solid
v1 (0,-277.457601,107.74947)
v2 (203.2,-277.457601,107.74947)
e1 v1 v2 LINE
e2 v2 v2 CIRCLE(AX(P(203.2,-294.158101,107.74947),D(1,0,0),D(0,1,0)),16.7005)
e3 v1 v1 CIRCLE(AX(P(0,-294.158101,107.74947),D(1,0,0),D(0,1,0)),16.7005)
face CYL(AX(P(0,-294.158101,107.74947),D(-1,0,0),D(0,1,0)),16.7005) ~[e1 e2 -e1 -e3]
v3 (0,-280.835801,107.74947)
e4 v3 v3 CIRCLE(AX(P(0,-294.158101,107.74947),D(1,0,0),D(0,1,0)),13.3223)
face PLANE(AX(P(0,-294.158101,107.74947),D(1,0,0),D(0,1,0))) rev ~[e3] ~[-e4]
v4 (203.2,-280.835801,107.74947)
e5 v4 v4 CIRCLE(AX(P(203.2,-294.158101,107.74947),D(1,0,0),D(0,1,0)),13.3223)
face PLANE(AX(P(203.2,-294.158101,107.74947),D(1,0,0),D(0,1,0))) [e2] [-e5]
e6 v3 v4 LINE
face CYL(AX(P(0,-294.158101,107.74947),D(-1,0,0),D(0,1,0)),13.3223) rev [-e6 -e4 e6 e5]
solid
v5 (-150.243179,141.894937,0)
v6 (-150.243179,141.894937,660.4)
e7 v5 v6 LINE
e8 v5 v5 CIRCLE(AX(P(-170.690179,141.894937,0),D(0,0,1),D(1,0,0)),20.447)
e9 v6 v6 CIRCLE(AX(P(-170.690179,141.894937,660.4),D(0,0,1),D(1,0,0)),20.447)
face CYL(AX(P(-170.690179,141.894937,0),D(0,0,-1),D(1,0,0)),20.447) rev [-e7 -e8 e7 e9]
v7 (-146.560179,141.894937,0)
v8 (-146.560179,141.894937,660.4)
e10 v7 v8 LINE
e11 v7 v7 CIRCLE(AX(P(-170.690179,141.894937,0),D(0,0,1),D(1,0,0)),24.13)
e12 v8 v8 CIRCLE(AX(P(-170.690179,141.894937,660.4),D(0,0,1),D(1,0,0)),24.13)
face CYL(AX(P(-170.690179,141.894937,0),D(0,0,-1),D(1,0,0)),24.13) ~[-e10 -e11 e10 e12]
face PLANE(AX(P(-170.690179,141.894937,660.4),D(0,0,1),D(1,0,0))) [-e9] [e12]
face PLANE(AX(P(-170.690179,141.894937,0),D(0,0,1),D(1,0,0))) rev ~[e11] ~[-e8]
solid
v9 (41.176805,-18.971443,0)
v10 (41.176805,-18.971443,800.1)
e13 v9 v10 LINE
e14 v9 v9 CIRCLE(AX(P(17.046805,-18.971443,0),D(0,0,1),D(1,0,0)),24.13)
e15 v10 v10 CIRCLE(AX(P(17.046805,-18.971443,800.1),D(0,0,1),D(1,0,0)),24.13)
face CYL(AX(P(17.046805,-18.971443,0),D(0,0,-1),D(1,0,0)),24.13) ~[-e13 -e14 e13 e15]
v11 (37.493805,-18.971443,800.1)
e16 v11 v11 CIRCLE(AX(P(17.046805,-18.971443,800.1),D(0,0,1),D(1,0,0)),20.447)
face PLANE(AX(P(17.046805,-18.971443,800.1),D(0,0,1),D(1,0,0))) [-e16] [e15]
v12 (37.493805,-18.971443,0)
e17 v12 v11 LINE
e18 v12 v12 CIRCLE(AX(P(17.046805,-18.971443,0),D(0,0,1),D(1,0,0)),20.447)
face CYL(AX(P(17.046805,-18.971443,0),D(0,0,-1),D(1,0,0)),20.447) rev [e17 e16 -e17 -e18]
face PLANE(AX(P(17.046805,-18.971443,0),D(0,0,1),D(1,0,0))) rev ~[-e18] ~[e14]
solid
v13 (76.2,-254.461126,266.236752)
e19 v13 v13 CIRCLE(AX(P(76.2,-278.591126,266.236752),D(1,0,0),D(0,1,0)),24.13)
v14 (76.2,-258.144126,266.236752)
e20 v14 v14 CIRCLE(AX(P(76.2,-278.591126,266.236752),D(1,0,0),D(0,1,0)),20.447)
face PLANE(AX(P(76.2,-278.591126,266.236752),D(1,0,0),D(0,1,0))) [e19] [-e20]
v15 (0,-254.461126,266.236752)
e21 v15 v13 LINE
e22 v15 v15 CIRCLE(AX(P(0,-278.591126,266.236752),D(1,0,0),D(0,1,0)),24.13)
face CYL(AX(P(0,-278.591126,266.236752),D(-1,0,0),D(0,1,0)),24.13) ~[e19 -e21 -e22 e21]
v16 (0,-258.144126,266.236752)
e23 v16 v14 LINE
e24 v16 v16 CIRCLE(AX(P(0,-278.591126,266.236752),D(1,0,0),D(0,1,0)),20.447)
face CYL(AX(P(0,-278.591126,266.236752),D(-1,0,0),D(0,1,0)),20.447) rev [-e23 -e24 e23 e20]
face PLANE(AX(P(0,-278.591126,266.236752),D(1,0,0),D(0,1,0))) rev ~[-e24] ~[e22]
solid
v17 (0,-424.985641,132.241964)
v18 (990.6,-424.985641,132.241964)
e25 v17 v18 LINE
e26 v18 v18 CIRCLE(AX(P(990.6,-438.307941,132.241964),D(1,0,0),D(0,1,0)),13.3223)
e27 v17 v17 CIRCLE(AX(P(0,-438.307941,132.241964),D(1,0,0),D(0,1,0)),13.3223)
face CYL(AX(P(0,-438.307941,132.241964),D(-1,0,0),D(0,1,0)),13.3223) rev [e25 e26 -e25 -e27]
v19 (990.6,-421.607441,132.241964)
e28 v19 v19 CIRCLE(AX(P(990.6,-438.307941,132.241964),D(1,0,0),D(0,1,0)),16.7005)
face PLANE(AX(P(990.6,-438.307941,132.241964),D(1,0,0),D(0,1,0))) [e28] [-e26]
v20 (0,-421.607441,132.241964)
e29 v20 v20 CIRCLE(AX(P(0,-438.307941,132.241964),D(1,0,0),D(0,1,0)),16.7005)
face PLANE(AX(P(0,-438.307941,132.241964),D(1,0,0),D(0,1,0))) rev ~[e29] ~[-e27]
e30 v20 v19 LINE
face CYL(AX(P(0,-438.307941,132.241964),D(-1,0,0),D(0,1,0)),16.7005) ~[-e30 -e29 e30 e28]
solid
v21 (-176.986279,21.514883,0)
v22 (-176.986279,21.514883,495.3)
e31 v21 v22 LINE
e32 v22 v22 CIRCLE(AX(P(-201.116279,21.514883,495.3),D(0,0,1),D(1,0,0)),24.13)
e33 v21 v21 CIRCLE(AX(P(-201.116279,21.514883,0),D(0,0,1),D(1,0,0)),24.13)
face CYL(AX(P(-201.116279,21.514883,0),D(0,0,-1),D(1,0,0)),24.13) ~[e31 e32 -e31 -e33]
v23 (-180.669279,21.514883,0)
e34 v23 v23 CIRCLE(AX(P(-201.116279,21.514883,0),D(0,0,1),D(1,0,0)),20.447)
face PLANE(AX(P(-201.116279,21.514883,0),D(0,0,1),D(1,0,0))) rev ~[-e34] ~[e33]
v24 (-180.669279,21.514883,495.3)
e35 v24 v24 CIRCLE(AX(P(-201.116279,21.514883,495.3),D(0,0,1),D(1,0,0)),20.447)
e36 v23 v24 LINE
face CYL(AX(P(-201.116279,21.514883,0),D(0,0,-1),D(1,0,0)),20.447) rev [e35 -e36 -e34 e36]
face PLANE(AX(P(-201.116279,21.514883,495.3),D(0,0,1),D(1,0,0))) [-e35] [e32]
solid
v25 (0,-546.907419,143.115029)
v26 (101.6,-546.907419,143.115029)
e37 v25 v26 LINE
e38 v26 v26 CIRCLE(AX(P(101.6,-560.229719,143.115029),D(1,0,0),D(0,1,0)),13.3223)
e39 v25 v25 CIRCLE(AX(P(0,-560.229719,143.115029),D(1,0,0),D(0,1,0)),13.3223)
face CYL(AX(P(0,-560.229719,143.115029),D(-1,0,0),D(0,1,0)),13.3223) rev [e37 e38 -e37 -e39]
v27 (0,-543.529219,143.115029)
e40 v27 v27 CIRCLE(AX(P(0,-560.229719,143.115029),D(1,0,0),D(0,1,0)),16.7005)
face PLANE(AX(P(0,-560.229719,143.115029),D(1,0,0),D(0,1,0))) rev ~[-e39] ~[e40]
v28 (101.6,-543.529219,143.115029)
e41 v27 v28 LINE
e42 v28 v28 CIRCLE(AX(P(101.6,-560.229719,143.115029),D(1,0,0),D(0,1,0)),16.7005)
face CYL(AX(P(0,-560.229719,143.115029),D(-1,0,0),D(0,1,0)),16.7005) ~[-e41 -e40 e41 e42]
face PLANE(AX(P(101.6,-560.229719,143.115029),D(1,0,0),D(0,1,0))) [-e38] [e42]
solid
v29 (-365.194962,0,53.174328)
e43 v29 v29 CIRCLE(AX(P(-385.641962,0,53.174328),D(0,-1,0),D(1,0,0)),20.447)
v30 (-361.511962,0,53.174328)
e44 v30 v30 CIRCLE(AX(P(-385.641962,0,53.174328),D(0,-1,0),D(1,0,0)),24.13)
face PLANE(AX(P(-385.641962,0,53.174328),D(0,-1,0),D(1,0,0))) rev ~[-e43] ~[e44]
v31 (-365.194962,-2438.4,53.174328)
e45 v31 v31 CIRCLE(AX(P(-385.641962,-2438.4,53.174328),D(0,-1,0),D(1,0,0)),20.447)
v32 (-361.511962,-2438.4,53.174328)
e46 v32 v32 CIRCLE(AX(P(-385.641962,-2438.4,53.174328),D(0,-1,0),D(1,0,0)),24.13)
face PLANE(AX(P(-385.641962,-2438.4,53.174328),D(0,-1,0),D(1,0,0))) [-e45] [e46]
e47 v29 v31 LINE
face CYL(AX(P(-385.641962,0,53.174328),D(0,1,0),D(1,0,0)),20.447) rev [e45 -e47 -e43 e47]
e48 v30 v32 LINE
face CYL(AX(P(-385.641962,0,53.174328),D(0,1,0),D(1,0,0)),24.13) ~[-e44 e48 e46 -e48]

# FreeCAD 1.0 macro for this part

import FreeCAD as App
import Part
import Sketcher

V = App.Vector
Q = App.Units.Quantity

doc = App.newDocument("Part")
params = doc.addObject("Spreadsheet::Sheet", "Params")
for row, (alias, value) in enumerate([
    ("sketch1_diameter", "1.9 in"),
    ("sketch1_diameter2", "1.61 in"),
    ("pad1_length", "31.5 in"),
    ("sketch2_diameter", "1.9 in"),
    ("sketch2_diameter2", "1.61 in"),
    ("pad2_length", "26 in"),
    ("sketch3_diameter", "1.9 in"),
    ("sketch3_diameter2", "1.61 in"),
    ("pad3_length", "19.5 in"),
    ("sketch4_diameter", "1.9 in"),
    ("sketch4_diameter2", "1.61 in"),
    ("pad4_length", "3 in"),
    ("sketch5_diameter", "1.315 in"),
    ("sketch5_diameter2", "1.049 in"),
    ("pad5_length", "8 in"),
    ("sketch6_diameter", "1.315 in"),
    ("sketch6_diameter2", "1.049 in"),
    ("pad6_length", "39 in"),
    ("sketch7_diameter", "1.315 in"),
    ("sketch7_diameter2", "1.049 in"),
    ("pad7_length", "4 in"),
    ("sketch8_diameter", "1.9 in"),
    ("sketch8_diameter2", "1.61 in"),
    ("pad8_length", "96 in"),
], start=1):
    params.set(f"A{row}", alias)
    params.set(f"B{row}", "=" + value)
    params.setAlias(f"B{row}", alias)

body = doc.addObject("PartDesign::Body", "Body")

sketch1 = body.newObject("Sketcher::SketchObject", "Sketch")
sketch1.AttachmentSupport = (doc.getObject("XY_Plane"), [""])
sketch1.MapMode = "FlatFace"
sketch1.addGeometry([
    Part.Circle(V(17, -19, 0), V(0, 0, 1), 24),
    Part.Circle(V(17, -19, 0), V(0, 0, 1), 20),
], False)
sketch1.addConstraint([
    Sketcher.Constraint("Coincident", 1, 3, 0, 3),
    Sketcher.Constraint("Diameter", 0, Q("1.9 in")),
    Sketcher.Constraint("Diameter", 1, Q("1.61 in")),
    Sketcher.Constraint("DistanceX", -1, 1, 0, 3, Q("17.046805 mm")),
    Sketcher.Constraint("DistanceY", 0, 3, -1, 1, Q("18.971443 mm")),
])
sketch1.setExpression("Constraints[1]", "Params.sketch1_diameter")
sketch1.setExpression("Constraints[2]", "Params.sketch1_diameter2")
pad1 = body.newObject("PartDesign::Pad", "Pad")
pad1.Profile = sketch1
pad1.setExpression("Length", "Params.pad1_length")
body2 = doc.addObject("PartDesign::Body", "Body001")

sketch2 = body2.newObject("Sketcher::SketchObject", "Sketch001")
sketch2.AttachmentSupport = (doc.getObject("XY_Plane001"), [""])
sketch2.MapMode = "FlatFace"
sketch2.addGeometry([
    Part.Circle(V(-171, 142, 0), V(0, 0, 1), 24),
    Part.Circle(V(-171, 142, 0), V(0, 0, 1), 20),
], False)
sketch2.addConstraint([
    Sketcher.Constraint("Coincident", 1, 3, 0, 3),
    Sketcher.Constraint("Diameter", 0, Q("1.9 in")),
    Sketcher.Constraint("Diameter", 1, Q("1.61 in")),
    Sketcher.Constraint("DistanceX", 0, 3, -1, 1, Q("170.690179 mm")),
    Sketcher.Constraint("DistanceY", -1, 1, 0, 3, Q("141.894937 mm")),
])
sketch2.setExpression("Constraints[1]", "Params.sketch2_diameter")
sketch2.setExpression("Constraints[2]", "Params.sketch2_diameter2")
pad2 = body2.newObject("PartDesign::Pad", "Pad001")
pad2.Profile = sketch2
pad2.setExpression("Length", "Params.pad2_length")
body3 = doc.addObject("PartDesign::Body", "Body002")

sketch3 = body3.newObject("Sketcher::SketchObject", "Sketch002")
sketch3.AttachmentSupport = (doc.getObject("XY_Plane002"), [""])
sketch3.MapMode = "FlatFace"
sketch3.addGeometry([
    Part.Circle(V(-201, 22, 0), V(0, 0, 1), 24),
    Part.Circle(V(-201, 22, 0), V(0, 0, 1), 20),
], False)
sketch3.addConstraint([
    Sketcher.Constraint("Coincident", 1, 3, 0, 3),
    Sketcher.Constraint("Diameter", 0, Q("1.9 in")),
    Sketcher.Constraint("Diameter", 1, Q("1.61 in")),
    Sketcher.Constraint("DistanceX", 0, 3, -1, 1, Q("201.116279 mm")),
    Sketcher.Constraint("DistanceY", -1, 1, 0, 3, Q("21.514883 mm")),
])
sketch3.setExpression("Constraints[1]", "Params.sketch3_diameter")
sketch3.setExpression("Constraints[2]", "Params.sketch3_diameter2")
pad3 = body3.newObject("PartDesign::Pad", "Pad002")
pad3.Profile = sketch3
pad3.setExpression("Length", "Params.pad3_length")
body4 = doc.addObject("PartDesign::Body", "Body003")

sketch4 = body4.newObject("Sketcher::SketchObject", "Sketch003")
sketch4.AttachmentSupport = (doc.getObject("YZ_Plane003"), [""])
sketch4.MapMode = "FlatFace"
sketch4.addGeometry([
    Part.Circle(V(-279, 266, 0), V(0, 0, 1), 24),
    Part.Circle(V(-279, 266, 0), V(0, 0, 1), 20),
], False)
sketch4.addConstraint([
    Sketcher.Constraint("Coincident", 1, 3, 0, 3),
    Sketcher.Constraint("Diameter", 0, Q("1.9 in")),
    Sketcher.Constraint("Diameter", 1, Q("1.61 in")),
    Sketcher.Constraint("DistanceX", 0, 3, -1, 1, Q("278.591126 mm")),
    Sketcher.Constraint("DistanceY", -1, 1, 0, 3, Q("266.236752 mm")),
])
sketch4.setExpression("Constraints[1]", "Params.sketch4_diameter")
sketch4.setExpression("Constraints[2]", "Params.sketch4_diameter2")
pad4 = body4.newObject("PartDesign::Pad", "Pad003")
pad4.Profile = sketch4
pad4.setExpression("Length", "Params.pad4_length")
body5 = doc.addObject("PartDesign::Body", "Body004")

sketch5 = body5.newObject("Sketcher::SketchObject", "Sketch004")
sketch5.AttachmentSupport = (doc.getObject("YZ_Plane004"), [""])
sketch5.MapMode = "FlatFace"
sketch5.addGeometry([
    Part.Circle(V(-294, 108, 0), V(0, 0, 1), 17),
    Part.Circle(V(-294, 108, 0), V(0, 0, 1), 13),
], False)
sketch5.addConstraint([
    Sketcher.Constraint("Coincident", 1, 3, 0, 3),
    Sketcher.Constraint("Diameter", 0, Q("1.315 in")),
    Sketcher.Constraint("Diameter", 1, Q("1.049 in")),
    Sketcher.Constraint("DistanceX", 0, 3, -1, 1, Q("294.158101 mm")),
    Sketcher.Constraint("DistanceY", -1, 1, 0, 3, Q("107.74947 mm")),
])
sketch5.setExpression("Constraints[1]", "Params.sketch5_diameter")
sketch5.setExpression("Constraints[2]", "Params.sketch5_diameter2")
pad5 = body5.newObject("PartDesign::Pad", "Pad004")
pad5.Profile = sketch5
pad5.setExpression("Length", "Params.pad5_length")
body6 = doc.addObject("PartDesign::Body", "Body005")

sketch6 = body6.newObject("Sketcher::SketchObject", "Sketch005")
sketch6.AttachmentSupport = (doc.getObject("YZ_Plane005"), [""])
sketch6.MapMode = "FlatFace"
sketch6.addGeometry([
    Part.Circle(V(-438, 132, 0), V(0, 0, 1), 17),
    Part.Circle(V(-438, 132, 0), V(0, 0, 1), 13),
], False)
sketch6.addConstraint([
    Sketcher.Constraint("Coincident", 1, 3, 0, 3),
    Sketcher.Constraint("Diameter", 0, Q("1.315 in")),
    Sketcher.Constraint("Diameter", 1, Q("1.049 in")),
    Sketcher.Constraint("DistanceX", 0, 3, -1, 1, Q("438.307941 mm")),
    Sketcher.Constraint("DistanceY", -1, 1, 0, 3, Q("132.241964 mm")),
])
sketch6.setExpression("Constraints[1]", "Params.sketch6_diameter")
sketch6.setExpression("Constraints[2]", "Params.sketch6_diameter2")
pad6 = body6.newObject("PartDesign::Pad", "Pad005")
pad6.Profile = sketch6
pad6.setExpression("Length", "Params.pad6_length")
body7 = doc.addObject("PartDesign::Body", "Body006")

sketch7 = body7.newObject("Sketcher::SketchObject", "Sketch006")
sketch7.AttachmentSupport = (doc.getObject("YZ_Plane006"), [""])
sketch7.MapMode = "FlatFace"
sketch7.addGeometry([
    Part.Circle(V(-560, 143, 0), V(0, 0, 1), 17),
    Part.Circle(V(-560, 143, 0), V(0, 0, 1), 13),
], False)
sketch7.addConstraint([
    Sketcher.Constraint("Coincident", 1, 3, 0, 3),
    Sketcher.Constraint("Diameter", 0, Q("1.315 in")),
    Sketcher.Constraint("Diameter", 1, Q("1.049 in")),
    Sketcher.Constraint("DistanceX", 0, 3, -1, 1, Q("560.229719 mm")),
    Sketcher.Constraint("DistanceY", -1, 1, 0, 3, Q("143.115029 mm")),
])
sketch7.setExpression("Constraints[1]", "Params.sketch7_diameter")
sketch7.setExpression("Constraints[2]", "Params.sketch7_diameter2")
pad7 = body7.newObject("PartDesign::Pad", "Pad006")
pad7.Profile = sketch7
pad7.setExpression("Length", "Params.pad7_length")
body8 = doc.addObject("PartDesign::Body", "Body007")

sketch8 = body8.newObject("Sketcher::SketchObject", "Sketch007")
sketch8.AttachmentSupport = (doc.getObject("XZ_Plane007"), [""])
sketch8.MapMode = "FlatFace"
sketch8.addGeometry([
    Part.Circle(V(-386, 53, 0), V(0, 0, 1), 24),
    Part.Circle(V(-386, 53, 0), V(0, 0, 1), 20),
], False)
sketch8.addConstraint([
    Sketcher.Constraint("Coincident", 1, 3, 0, 3),
    Sketcher.Constraint("Diameter", 0, Q("1.9 in")),
    Sketcher.Constraint("Diameter", 1, Q("1.61 in")),
    Sketcher.Constraint("DistanceX", 0, 3, -1, 1, Q("385.641962 mm")),
    Sketcher.Constraint("DistanceY", -1, 1, 0, 3, Q("53.174328 mm")),
])
sketch8.setExpression("Constraints[1]", "Params.sketch8_diameter")
sketch8.setExpression("Constraints[2]", "Params.sketch8_diameter2")
pad8 = body8.newObject("PartDesign::Pad", "Pad007")
pad8.Profile = sketch8
pad8.setExpression("Length", "Params.pad8_length")

doc.recompute()
